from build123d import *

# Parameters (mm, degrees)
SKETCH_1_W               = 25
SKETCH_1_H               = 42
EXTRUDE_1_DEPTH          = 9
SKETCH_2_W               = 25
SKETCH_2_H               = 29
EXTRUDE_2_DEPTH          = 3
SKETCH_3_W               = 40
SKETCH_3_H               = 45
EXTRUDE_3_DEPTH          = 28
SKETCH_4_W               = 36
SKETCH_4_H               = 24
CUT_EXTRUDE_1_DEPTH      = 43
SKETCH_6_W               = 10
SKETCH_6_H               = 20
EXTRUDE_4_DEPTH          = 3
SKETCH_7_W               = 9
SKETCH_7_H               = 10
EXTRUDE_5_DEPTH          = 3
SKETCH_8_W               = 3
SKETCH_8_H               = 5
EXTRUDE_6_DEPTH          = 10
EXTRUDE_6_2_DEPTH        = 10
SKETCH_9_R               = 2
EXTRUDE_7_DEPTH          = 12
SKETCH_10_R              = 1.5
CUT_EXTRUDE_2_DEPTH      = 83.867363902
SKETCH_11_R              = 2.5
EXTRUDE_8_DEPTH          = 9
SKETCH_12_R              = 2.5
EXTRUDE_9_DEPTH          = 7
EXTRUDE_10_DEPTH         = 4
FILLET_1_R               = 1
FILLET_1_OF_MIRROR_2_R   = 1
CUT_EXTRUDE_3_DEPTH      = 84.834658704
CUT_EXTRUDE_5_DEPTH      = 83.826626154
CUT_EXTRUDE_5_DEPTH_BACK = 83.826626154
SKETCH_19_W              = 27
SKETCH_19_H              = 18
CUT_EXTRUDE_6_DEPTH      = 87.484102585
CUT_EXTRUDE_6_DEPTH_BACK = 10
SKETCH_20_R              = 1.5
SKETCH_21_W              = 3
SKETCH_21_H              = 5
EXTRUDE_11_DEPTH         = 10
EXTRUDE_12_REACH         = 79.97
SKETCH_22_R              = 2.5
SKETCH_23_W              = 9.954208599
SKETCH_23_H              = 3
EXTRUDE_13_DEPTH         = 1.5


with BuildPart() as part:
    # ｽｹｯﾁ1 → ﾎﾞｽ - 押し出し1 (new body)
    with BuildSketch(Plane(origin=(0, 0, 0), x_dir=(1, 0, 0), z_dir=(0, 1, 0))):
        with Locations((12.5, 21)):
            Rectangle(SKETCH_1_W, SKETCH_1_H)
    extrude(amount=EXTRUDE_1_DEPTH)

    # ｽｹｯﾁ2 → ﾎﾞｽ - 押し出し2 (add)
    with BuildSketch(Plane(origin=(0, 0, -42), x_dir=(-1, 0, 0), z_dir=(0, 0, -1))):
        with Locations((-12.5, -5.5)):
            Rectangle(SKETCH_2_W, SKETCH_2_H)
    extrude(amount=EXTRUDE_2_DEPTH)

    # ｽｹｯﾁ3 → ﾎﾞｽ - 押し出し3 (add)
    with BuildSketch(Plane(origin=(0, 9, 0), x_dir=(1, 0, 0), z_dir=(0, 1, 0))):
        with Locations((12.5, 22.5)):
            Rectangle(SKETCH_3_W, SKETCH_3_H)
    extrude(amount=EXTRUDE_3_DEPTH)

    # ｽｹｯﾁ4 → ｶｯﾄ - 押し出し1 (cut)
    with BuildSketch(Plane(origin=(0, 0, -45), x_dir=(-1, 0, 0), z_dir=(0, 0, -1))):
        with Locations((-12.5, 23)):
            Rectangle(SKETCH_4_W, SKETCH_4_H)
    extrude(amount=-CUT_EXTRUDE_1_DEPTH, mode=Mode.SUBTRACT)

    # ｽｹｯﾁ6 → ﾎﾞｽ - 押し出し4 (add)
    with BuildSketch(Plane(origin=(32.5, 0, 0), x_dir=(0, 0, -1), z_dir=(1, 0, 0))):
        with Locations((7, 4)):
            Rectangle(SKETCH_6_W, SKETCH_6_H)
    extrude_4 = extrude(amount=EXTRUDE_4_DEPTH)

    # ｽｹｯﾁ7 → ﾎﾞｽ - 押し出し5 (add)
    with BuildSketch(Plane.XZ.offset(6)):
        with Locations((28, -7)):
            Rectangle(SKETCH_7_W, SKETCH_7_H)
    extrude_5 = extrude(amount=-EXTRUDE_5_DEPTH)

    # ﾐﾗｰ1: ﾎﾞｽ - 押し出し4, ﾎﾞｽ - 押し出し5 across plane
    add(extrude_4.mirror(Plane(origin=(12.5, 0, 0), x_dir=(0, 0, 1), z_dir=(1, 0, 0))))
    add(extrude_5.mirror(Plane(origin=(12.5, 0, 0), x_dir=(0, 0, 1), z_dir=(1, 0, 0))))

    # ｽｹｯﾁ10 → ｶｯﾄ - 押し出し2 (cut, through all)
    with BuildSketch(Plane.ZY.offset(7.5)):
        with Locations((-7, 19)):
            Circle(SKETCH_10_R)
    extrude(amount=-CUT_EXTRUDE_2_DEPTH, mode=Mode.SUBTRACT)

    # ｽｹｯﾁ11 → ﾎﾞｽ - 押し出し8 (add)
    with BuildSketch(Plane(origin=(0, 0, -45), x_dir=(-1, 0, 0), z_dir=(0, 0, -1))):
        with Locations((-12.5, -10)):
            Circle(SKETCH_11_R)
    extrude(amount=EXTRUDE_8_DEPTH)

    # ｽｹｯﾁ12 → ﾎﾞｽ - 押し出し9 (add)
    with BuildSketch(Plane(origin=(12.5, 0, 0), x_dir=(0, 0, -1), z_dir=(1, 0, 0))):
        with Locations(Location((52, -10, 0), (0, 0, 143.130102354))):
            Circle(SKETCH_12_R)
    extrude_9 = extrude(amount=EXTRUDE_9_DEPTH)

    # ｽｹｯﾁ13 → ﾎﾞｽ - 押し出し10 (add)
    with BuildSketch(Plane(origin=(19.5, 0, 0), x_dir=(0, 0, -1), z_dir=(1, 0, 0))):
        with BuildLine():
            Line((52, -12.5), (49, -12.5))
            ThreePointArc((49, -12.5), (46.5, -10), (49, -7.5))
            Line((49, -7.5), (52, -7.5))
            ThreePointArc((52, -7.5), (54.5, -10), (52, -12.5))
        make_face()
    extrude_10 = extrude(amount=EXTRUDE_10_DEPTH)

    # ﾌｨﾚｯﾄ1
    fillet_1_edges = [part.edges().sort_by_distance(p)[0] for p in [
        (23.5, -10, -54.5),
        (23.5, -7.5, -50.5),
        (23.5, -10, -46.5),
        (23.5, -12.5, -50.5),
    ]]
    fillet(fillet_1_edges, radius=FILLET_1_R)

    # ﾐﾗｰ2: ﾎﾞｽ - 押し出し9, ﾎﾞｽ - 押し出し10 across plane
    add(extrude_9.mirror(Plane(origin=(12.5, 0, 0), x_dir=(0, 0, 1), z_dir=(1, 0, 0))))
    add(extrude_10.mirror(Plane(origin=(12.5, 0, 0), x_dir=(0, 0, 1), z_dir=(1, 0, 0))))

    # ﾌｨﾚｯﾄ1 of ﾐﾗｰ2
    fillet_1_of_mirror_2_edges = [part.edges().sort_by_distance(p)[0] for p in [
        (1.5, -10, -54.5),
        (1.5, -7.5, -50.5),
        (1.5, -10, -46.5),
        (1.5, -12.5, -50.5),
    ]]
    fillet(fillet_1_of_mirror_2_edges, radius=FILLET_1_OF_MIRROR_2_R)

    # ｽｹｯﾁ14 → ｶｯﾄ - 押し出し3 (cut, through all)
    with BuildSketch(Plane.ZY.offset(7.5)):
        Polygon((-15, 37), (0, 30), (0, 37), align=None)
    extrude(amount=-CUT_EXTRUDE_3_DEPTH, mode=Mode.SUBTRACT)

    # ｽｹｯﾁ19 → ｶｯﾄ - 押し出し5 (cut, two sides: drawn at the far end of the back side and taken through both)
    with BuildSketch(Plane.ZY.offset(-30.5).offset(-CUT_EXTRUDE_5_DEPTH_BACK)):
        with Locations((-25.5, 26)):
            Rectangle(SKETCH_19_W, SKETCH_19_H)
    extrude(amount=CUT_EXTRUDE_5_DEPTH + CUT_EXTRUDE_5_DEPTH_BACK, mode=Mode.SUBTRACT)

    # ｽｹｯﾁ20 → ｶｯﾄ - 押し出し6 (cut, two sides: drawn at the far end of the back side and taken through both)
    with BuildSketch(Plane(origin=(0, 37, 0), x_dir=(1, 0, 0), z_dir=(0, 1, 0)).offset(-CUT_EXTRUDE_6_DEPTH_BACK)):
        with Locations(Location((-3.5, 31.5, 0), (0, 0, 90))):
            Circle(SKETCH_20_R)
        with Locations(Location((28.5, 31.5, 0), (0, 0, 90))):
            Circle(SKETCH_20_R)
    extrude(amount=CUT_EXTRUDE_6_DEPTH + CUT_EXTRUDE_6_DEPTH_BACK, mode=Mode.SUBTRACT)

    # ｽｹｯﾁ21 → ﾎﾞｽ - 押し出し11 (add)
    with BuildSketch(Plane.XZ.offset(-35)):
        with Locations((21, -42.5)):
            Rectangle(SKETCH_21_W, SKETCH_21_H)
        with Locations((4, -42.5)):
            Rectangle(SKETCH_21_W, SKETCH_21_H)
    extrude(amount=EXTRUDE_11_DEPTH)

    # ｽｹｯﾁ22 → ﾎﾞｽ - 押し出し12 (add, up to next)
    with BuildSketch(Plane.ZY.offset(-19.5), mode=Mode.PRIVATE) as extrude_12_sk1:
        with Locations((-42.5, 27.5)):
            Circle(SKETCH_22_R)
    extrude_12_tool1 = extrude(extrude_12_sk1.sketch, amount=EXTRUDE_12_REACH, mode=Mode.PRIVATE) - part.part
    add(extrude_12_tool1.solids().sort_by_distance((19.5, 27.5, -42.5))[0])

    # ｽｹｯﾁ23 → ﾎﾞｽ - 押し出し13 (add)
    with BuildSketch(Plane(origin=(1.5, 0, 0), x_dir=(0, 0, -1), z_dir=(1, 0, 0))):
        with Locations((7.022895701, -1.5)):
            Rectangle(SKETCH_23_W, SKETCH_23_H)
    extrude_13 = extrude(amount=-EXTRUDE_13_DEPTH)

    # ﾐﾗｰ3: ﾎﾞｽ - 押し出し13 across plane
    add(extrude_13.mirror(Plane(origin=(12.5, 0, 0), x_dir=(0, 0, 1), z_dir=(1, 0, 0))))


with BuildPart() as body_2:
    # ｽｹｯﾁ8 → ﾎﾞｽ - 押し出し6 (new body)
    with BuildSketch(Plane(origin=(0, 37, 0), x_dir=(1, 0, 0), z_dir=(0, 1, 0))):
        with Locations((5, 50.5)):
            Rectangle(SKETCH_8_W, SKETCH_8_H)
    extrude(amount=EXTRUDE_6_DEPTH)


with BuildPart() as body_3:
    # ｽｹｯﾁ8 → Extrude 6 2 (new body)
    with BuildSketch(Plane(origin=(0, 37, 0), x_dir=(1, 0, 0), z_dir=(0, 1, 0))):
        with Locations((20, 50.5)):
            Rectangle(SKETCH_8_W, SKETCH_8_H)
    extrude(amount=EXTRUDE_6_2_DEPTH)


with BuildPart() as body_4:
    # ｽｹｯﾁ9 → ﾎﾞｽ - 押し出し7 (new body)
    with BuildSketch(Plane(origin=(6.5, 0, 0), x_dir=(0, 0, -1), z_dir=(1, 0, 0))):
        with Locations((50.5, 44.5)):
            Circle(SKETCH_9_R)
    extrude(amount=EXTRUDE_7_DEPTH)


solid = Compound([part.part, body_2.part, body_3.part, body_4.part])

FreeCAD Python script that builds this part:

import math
import FreeCAD as App
import Part
import Sketcher
Q = App.Units.Quantity


def edges_at(feature, points):
    """Names of the edges that pass closest to the given points."""
    edges = feature.Shape.Edges
    near = lambda p: min(range(len(edges)), key=lambda i: edges[i].distToShape(Part.Vertex(*p))[0])
    return sorted({f"Edge{near(p) + 1}" for p in points})

doc = App.newDocument("Part")
body = doc.addObject("PartDesign::Body", "Body")

# Sketch on XZ plane
sketch1 = body.newObject("Sketcher::SketchObject", "Sketch")
sketch1.AttachmentSupport = (doc.getObject("XZ_Plane"), [""])
sketch1.MapMode = "FlatFace"
sketch1.addGeometry([
    Part.LineSegment(App.Vector(0, -42, 0), App.Vector(0, 0, 0)),
    Part.LineSegment(App.Vector(0, 0, 0), App.Vector(25, 0, 0)),
    Part.LineSegment(App.Vector(25, 0, 0), App.Vector(25, -42, 0)),
    Part.LineSegment(App.Vector(25, -42, 0), App.Vector(0, -42, 0)),
], False)
sketch1.addConstraint([
    Sketcher.Constraint("Coincident", 0, 2, 1, 1),
    Sketcher.Constraint("Coincident", 1, 2, 2, 1),
    Sketcher.Constraint("Coincident", 2, 2, 3, 1),
    Sketcher.Constraint("Coincident", 3, 2, 0, 1),
    Sketcher.Constraint("Vertical", 0),
    Sketcher.Constraint("Horizontal", 1),
    Sketcher.Constraint("Vertical", 2),
    Sketcher.Constraint("Horizontal", 3),
    Sketcher.Constraint("Coincident", 0, 2, -1, 1),
    Sketcher.Constraint("DistanceX", 1, 1, 1, 2, Q("25 mm")),
    Sketcher.Constraint("DistanceY", 0, 1, 0, 2, Q("42 mm")),
])
pad1 = body.newObject("PartDesign::Pad", "Pad")
pad1.Profile = sketch1
pad1.Length = 9
pad1.Reversed = True

# Sketch on XY plane
sketch2 = body.newObject("Sketcher::SketchObject", "Sketch001")
sketch2.AttachmentSupport = (doc.getObject("XY_Plane"), [""])
sketch2.MapMode = "FlatFace"
sketch2.AttachmentOffset = App.Placement(App.Vector(0, 0, -42), App.Rotation())
sketch2.addGeometry([
    Part.LineSegment(App.Vector(25, 9, 0), App.Vector(25, -20, 0)),
    Part.LineSegment(App.Vector(25, -20, 0), App.Vector(0, -20, 0)),
    Part.LineSegment(App.Vector(0, -20, 0), App.Vector(0, 9, 0)),
    Part.LineSegment(App.Vector(0, 9, 0), App.Vector(25, 9, 0)),
], False)
sketch2.addConstraint([
    Sketcher.Constraint("Coincident", 0, 2, 1, 1),
    Sketcher.Constraint("Coincident", 1, 2, 2, 1),
    Sketcher.Constraint("Coincident", 2, 2, 3, 1),
    Sketcher.Constraint("Coincident", 3, 2, 0, 1),
    Sketcher.Constraint("Vertical", 0),
    Sketcher.Constraint("Horizontal", 1),
    Sketcher.Constraint("Vertical", 2),
    Sketcher.Constraint("Horizontal", 3),
    Sketcher.Constraint("PointOnObject", 1, 2, -2),
    Sketcher.Constraint("DistanceX", 1, 2, 1, 1, Q("25 mm")),
    Sketcher.Constraint("DistanceY", 0, 2, 0, 1, Q("29 mm")),
    Sketcher.Constraint("DistanceY", 0, 2, -1, 1, Q("20 mm")),
])
pad2 = body.newObject("PartDesign::Pad", "Pad001")
pad2.Profile = sketch2
pad2.Length = 3
pad2.Reversed = True

# Sketch on XZ plane
sketch3 = body.newObject("Sketcher::SketchObject", "Sketch002")
sketch3.AttachmentSupport = (doc.getObject("XZ_Plane"), [""])
sketch3.MapMode = "FlatFace"
sketch3.AttachmentOffset = App.Placement(App.Vector(0, 0, -9), App.Rotation())
sketch3.addGeometry([
    Part.LineSegment(App.Vector(-7.5, -45, 0), App.Vector(-7.5, 0, 0)),
    Part.LineSegment(App.Vector(-7.5, 0, 0), App.Vector(32.5, 0, 0)),
    Part.LineSegment(App.Vector(32.5, 0, 0), App.Vector(32.5, -45, 0)),
    Part.LineSegment(App.Vector(32.5, -45, 0), App.Vector(-7.5, -45, 0)),
], False)
sketch3.addConstraint([
    Sketcher.Constraint("Coincident", 0, 2, 1, 1),
    Sketcher.Constraint("Coincident", 1, 2, 2, 1),
    Sketcher.Constraint("Coincident", 2, 2, 3, 1),
    Sketcher.Constraint("Coincident", 3, 2, 0, 1),
    Sketcher.Constraint("Vertical", 0),
    Sketcher.Constraint("Horizontal", 1),
    Sketcher.Constraint("Vertical", 2),
    Sketcher.Constraint("Horizontal", 3),
    Sketcher.Constraint("PointOnObject", 0, 2, -1),
    Sketcher.Constraint("DistanceX", 1, 1, 1, 2, Q("40 mm")),
    Sketcher.Constraint("DistanceY", 0, 1, 0, 2, Q("45 mm")),
    Sketcher.Constraint("DistanceX", 0, 2, -1, 1, Q("7.5 mm")),
])
pad3 = body.newObject("PartDesign::Pad", "Pad002")
pad3.Profile = sketch3
pad3.Length = 28
pad3.Reversed = True

# Sketch on XY plane
sketch4 = body.newObject("Sketcher::SketchObject", "Sketch003")
sketch4.AttachmentSupport = (doc.getObject("XY_Plane"), [""])
sketch4.MapMode = "FlatFace"
sketch4.AttachmentOffset = App.Placement(App.Vector(0, 0, -45), App.Rotation())
sketch4.addGeometry([
    Part.LineSegment(App.Vector(30.5, 35, 0), App.Vector(30.5, 11, 0)),
    Part.LineSegment(App.Vector(30.5, 11, 0), App.Vector(-5.5, 11, 0)),
    Part.LineSegment(App.Vector(-5.5, 11, 0), App.Vector(-5.5, 35, 0)),
    Part.LineSegment(App.Vector(-5.5, 35, 0), App.Vector(30.5, 35, 0)),
], False)
sketch4.addConstraint([
    Sketcher.Constraint("Coincident", 0, 2, 1, 1),
    Sketcher.Constraint("Coincident", 1, 2, 2, 1),
    Sketcher.Constraint("Coincident", 2, 2, 3, 1),
    Sketcher.Constraint("Coincident", 3, 2, 0, 1),
    Sketcher.Constraint("Vertical", 0),
    Sketcher.Constraint("Horizontal", 1),
    Sketcher.Constraint("Vertical", 2),
    Sketcher.Constraint("Horizontal", 3),
    Sketcher.Constraint("DistanceX", 1, 2, 1, 1, Q("36 mm")),
    Sketcher.Constraint("DistanceY", 0, 2, 0, 1, Q("24 mm")),
    Sketcher.Constraint("DistanceY", -1, 1, 0, 2, Q("11 mm")),
    Sketcher.Constraint("DistanceX", -1, 1, 0, 2, Q("30.5 mm")),
])
pocket1 = body.newObject("PartDesign::Pocket", "Pocket")
pocket1.Profile = sketch4
pocket1.Length = 43
pocket1.Reversed = True

# Sketch on YZ plane
sketch5 = body.newObject("Sketcher::SketchObject", "Sketch004")
sketch5.AttachmentSupport = (doc.getObject("YZ_Plane"), [""])
sketch5.MapMode = "FlatFace"
sketch5.AttachmentOffset = App.Placement(App.Vector(0, 0, 32.5), App.Rotation())
sketch5.addGeometry([
    Part.LineSegment(App.Vector(14, -2, 0), App.Vector(-6, -2, 0)),
    Part.LineSegment(App.Vector(-6, -2, 0), App.Vector(-6, -12, 0)),
    Part.LineSegment(App.Vector(-6, -12, 0), App.Vector(14, -12, 0)),
    Part.LineSegment(App.Vector(14, -12, 0), App.Vector(14, -2, 0)),
], False)
sketch5.addConstraint([
    Sketcher.Constraint("Coincident", 0, 2, 1, 1),
    Sketcher.Constraint("Coincident", 1, 2, 2, 1),
    Sketcher.Constraint("Coincident", 2, 2, 3, 1),
    Sketcher.Constraint("Coincident", 3, 2, 0, 1),
    Sketcher.Constraint("Horizontal", 0),
    Sketcher.Constraint("Vertical", 1),
    Sketcher.Constraint("Horizontal", 2),
    Sketcher.Constraint("Vertical", 3),
    Sketcher.Constraint("DistanceX", 0, 2, 0, 1, Q("20 mm")),
    Sketcher.Constraint("DistanceY", 1, 2, 1, 1, Q("10 mm")),
    Sketcher.Constraint("DistanceX", 0, 2, -1, 1, Q("6 mm")),
    Sketcher.Constraint("DistanceY", 0, 2, -1, 1, Q("2 mm")),
])
pad4 = body.newObject("PartDesign::Pad", "Pad003")
pad4.Profile = sketch5
pad4.Length = 3

# Sketch on XZ plane
sketch6 = body.newObject("Sketcher::SketchObject", "Sketch005")
sketch6.AttachmentSupport = (doc.getObject("XZ_Plane"), [""])
sketch6.MapMode = "FlatFace"
sketch6.AttachmentOffset = App.Placement(App.Vector(0, 0, 6), App.Rotation())
sketch6.addGeometry([
    Part.LineSegment(App.Vector(23.5, -2, 0), App.Vector(23.5, -12, 0)),
    Part.LineSegment(App.Vector(23.5, -12, 0), App.Vector(32.5, -12, 0)),
    Part.LineSegment(App.Vector(32.5, -12, 0), App.Vector(32.5, -2, 0)),
    Part.LineSegment(App.Vector(32.5, -2, 0), App.Vector(23.5, -2, 0)),
], False)
sketch6.addConstraint([
    Sketcher.Constraint("Coincident", 0, 2, 1, 1),
    Sketcher.Constraint("Coincident", 1, 2, 2, 1),
    Sketcher.Constraint("Coincident", 2, 2, 3, 1),
    Sketcher.Constraint("Coincident", 3, 2, 0, 1),
    Sketcher.Constraint("Vertical", 0),
    Sketcher.Constraint("Horizontal", 1),
    Sketcher.Constraint("Vertical", 2),
    Sketcher.Constraint("Horizontal", 3),
    Sketcher.Constraint("DistanceX", 1, 1, 1, 2, Q("9 mm")),
    Sketcher.Constraint("DistanceY", 0, 2, 0, 1, Q("10 mm")),
    Sketcher.Constraint("DistanceY", 0, 2, -1, 1, Q("12 mm")),
    Sketcher.Constraint("DistanceX", -1, 1, 0, 2, Q("23.5 mm")),
])
pad5 = body.newObject("PartDesign::Pad", "Pad004")
pad5.Profile = sketch6
pad5.Length = 3
pad5.Reversed = True
doc.recompute()

datumplane = body.newObject("PartDesign::Plane", "DatumPlane")
datumplane.AttachmentSupport = (doc.getObject("YZ_Plane"), [""])
datumplane.MapMode = "FlatFace"
datumplane.AttachmentOffset = App.Placement(App.Vector(0, 0, 12.5), App.Rotation())
mirrored = body.newObject("PartDesign::Mirrored", "Mirrored")
mirrored.Originals = [pad4, pad5]
mirrored.MirrorPlane = (datumplane, [""])
body.Tip = mirrored

# Sketch on YZ plane
sketch7 = body.newObject("Sketcher::SketchObject", "Sketch006")
sketch7.AttachmentSupport = (doc.getObject("YZ_Plane"), [""])
sketch7.MapMode = "FlatFace"
sketch7.AttachmentOffset = App.Placement(App.Vector(0, 0, -7.5), App.Rotation())
sketch7.addGeometry(Part.Circle(App.Vector(19, -7, 0), App.Vector(0, 0, 1), 1.5), False)
sketch7.addConstraint([
    Sketcher.Constraint("Diameter", 0, Q("3 mm")),
    Sketcher.Constraint("DistanceX", -1, 1, 0, 3, Q("19 mm")),
    Sketcher.Constraint("DistanceY", 0, 3, -1, 1, Q("7 mm")),
])
pocket2 = body.newObject("PartDesign::Pocket", "Pocket001")
pocket2.Profile = sketch7
pocket2.Type = "ThroughAll"
pocket2.Reversed = True

# Sketch on XY plane
sketch8 = body.newObject("Sketcher::SketchObject", "Sketch007")
sketch8.AttachmentSupport = (doc.getObject("XY_Plane"), [""])
sketch8.MapMode = "FlatFace"
sketch8.AttachmentOffset = App.Placement(App.Vector(0, 0, -45), App.Rotation())
sketch8.addGeometry(Part.Circle(App.Vector(12.5, -10, 0), App.Vector(0, 0, 1), 2.5), False)
sketch8.addConstraint([
    Sketcher.Constraint("Diameter", 0, Q("5 mm")),
    Sketcher.Constraint("DistanceY", 0, 3, -1, 1, Q("10 mm")),
    Sketcher.Constraint("DistanceX", -1, 1, 0, 3, Q("12.5 mm")),
])
pad6 = body.newObject("PartDesign::Pad", "Pad005")
pad6.Profile = sketch8
pad6.Length = 9
pad6.Reversed = True

# Sketch on YZ plane
sketch9 = body.newObject("Sketcher::SketchObject", "Sketch008")
sketch9.AttachmentSupport = (doc.getObject("YZ_Plane"), [""])
sketch9.MapMode = "FlatFace"
sketch9.AttachmentOffset = App.Placement(App.Vector(0, 0, 12.5), App.Rotation())
sketch9.addGeometry(Part.Circle(App.Vector(-10, -52, 0), App.Vector(0, 0, 1), 2.5), False)
sketch9.addConstraint([
    Sketcher.Constraint("Diameter", 0, Q("5 mm")),
    Sketcher.Constraint("DistanceX", 0, 3, -1, 1, Q("10 mm")),
    Sketcher.Constraint("DistanceY", 0, 3, -1, 1, Q("52 mm")),
])
pad7 = body.newObject("PartDesign::Pad", "Pad006")
pad7.Profile = sketch9
pad7.Length = 7

# Sketch on YZ plane
sketch10 = body.newObject("Sketcher::SketchObject", "Sketch009")
sketch10.AttachmentSupport = (doc.getObject("YZ_Plane"), [""])
sketch10.MapMode = "FlatFace"
sketch10.AttachmentOffset = App.Placement(App.Vector(0, 0, 19.5), App.Rotation())
sketch10.addGeometry([
    Part.LineSegment(App.Vector(-12.5, -49, 0), App.Vector(-12.5, -52, 0)),
    Part.ArcOfCircle(Part.Circle(App.Vector(-10, -52, 0), App.Vector(0, 0, 1), 2.5), math.radians(180), math.radians(360)),
    Part.LineSegment(App.Vector(-7.5, -52, 0), App.Vector(-7.5, -49, 0)),
    Part.ArcOfCircle(Part.Circle(App.Vector(-10, -49, 0), App.Vector(0, 0, 1), 2.5), math.radians(0), math.radians(180)),
], False)
sketch10.addConstraint([
    Sketcher.Constraint("Tangent", 0, 2, 1, 1),
    Sketcher.Constraint("Tangent", 1, 2, 2, 1),
    Sketcher.Constraint("Tangent", 2, 2, 3, 1),
    Sketcher.Constraint("Tangent", 3, 2, 0, 1),
    Sketcher.Constraint("Vertical", 0),
    Sketcher.Constraint("Vertical", 2),
    Sketcher.Constraint("Radius", 1, Q("2.5 mm")),
    Sketcher.Constraint("DistanceY", 0, 2, 0, 1, Q("3 mm")),
    Sketcher.Constraint("DistanceX", 1, 3, -1, 1, Q("10 mm")),
    Sketcher.Constraint("DistanceY", 1, 3, -1, 1, Q("52 mm")),
])
pad8 = body.newObject("PartDesign::Pad", "Pad007")
pad8.Profile = sketch10
pad8.Length = 4
doc.recompute()

fillet = body.newObject("PartDesign::Fillet", "Fillet")
fillet.Base = (pad8, edges_at(pad8, [
    (23.5, -10, -54.5),
    (23.5, -7.5, -50.5),
    (23.5, -10, -46.5),
    (23.5, -12.5, -50.5),
]))
fillet.Radius = 1
doc.recompute()

datumplane2 = body.newObject("PartDesign::Plane", "DatumPlane001")
datumplane2.AttachmentSupport = (doc.getObject("YZ_Plane"), [""])
datumplane2.MapMode = "FlatFace"
datumplane2.AttachmentOffset = App.Placement(App.Vector(0, 0, 12.5), App.Rotation())
mirrored2 = body.newObject("PartDesign::Mirrored", "Mirrored001")
mirrored2.Originals = [pad7, pad8]
mirrored2.MirrorPlane = (datumplane2, [""])
body.Tip = mirrored2
doc.recompute()

fillet2 = body.newObject("PartDesign::Fillet", "Fillet001")
fillet2.Base = (mirrored2, edges_at(mirrored2, [
    (1.5, -10, -54.5),
    (1.5, -7.5, -50.5),
    (1.5, -10, -46.5),
    (1.5, -12.5, -50.5),
]))
fillet2.Radius = 1

# Sketch on YZ plane
sketch11 = body.newObject("Sketcher::SketchObject", "Sketch010")
sketch11.AttachmentSupport = (doc.getObject("YZ_Plane"), [""])
sketch11.MapMode = "FlatFace"
sketch11.AttachmentOffset = App.Placement(App.Vector(0, 0, -7.5), App.Rotation())
sketch11.addGeometry([
    Part.LineSegment(App.Vector(37, -15, 0), App.Vector(30, 0, 0)),
    Part.LineSegment(App.Vector(30, 0, 0), App.Vector(37, 0, 0)),
    Part.LineSegment(App.Vector(37, 0, 0), App.Vector(37, -15, 0)),
], False)
sketch11.addConstraint([
    Sketcher.Constraint("Coincident", 0, 2, 1, 1),
    Sketcher.Constraint("Coincident", 1, 2, 2, 1),
    Sketcher.Constraint("Coincident", 2, 2, 0, 1),
    Sketcher.Constraint("Horizontal", 1),
    Sketcher.Constraint("Vertical", 2),
    Sketcher.Constraint("PointOnObject", 0, 2, -1),
    Sketcher.Constraint("DistanceX", 1, 1, 1, 2, Q("7 mm")),
    Sketcher.Constraint("DistanceY", 2, 2, 2, 1, Q("15 mm")),
    Sketcher.Constraint("DistanceX", -1, 1, 0, 2, Q("30 mm")),
])
pocket3 = body.newObject("PartDesign::Pocket", "Pocket002")
pocket3.Profile = sketch11
pocket3.Type = "ThroughAll"
pocket3.Reversed = True

# Sketch on YZ plane
sketch12 = body.newObject("Sketcher::SketchObject", "Sketch011")
sketch12.AttachmentSupport = (doc.getObject("YZ_Plane"), [""])
sketch12.MapMode = "FlatFace"
sketch12.AttachmentOffset = App.Placement(App.Vector(0, 0, 30.5), App.Rotation())
sketch12.addGeometry([
    Part.LineSegment(App.Vector(35, -39, 0), App.Vector(17, -39, 0)),
    Part.LineSegment(App.Vector(17, -39, 0), App.Vector(17, -12, 0)),
    Part.LineSegment(App.Vector(17, -12, 0), App.Vector(35, -12, 0)),
    Part.LineSegment(App.Vector(35, -12, 0), App.Vector(35, -39, 0)),
], False)
sketch12.addConstraint([
    Sketcher.Constraint("Coincident", 0, 2, 1, 1),
    Sketcher.Constraint("Coincident", 1, 2, 2, 1),
    Sketcher.Constraint("Coincident", 2, 2, 3, 1),
    Sketcher.Constraint("Coincident", 3, 2, 0, 1),
    Sketcher.Constraint("Horizontal", 0),
    Sketcher.Constraint("Vertical", 1),
    Sketcher.Constraint("Horizontal", 2),
    Sketcher.Constraint("Vertical", 3),
    Sketcher.Constraint("DistanceX", 0, 2, 0, 1, Q("18 mm")),
    Sketcher.Constraint("DistanceY", 1, 1, 1, 2, Q("27 mm")),
    Sketcher.Constraint("DistanceX", -1, 1, 0, 2, Q("17 mm")),
    Sketcher.Constraint("DistanceY", 0, 2, -1, 1, Q("39 mm")),
])
pocket4 = body.newObject("PartDesign::Pocket", "Pocket003")
pocket4.Profile = sketch12
pocket4.Type = "ThroughAll"
pocket4.Midplane = True

# Sketch on XZ plane
sketch13 = body.newObject("Sketcher::SketchObject", "Sketch012")
sketch13.AttachmentSupport = (doc.getObject("XZ_Plane"), [""])
sketch13.MapMode = "FlatFace"
sketch13.AttachmentOffset = App.Placement(App.Vector(0, 0, -37), App.Rotation())
sketch13.addGeometry([
    Part.Circle(App.Vector(-3.5, -31.5, 0), App.Vector(0, 0, 1), 1.5),
    Part.Circle(App.Vector(28.5, -31.5, 0), App.Vector(0, 0, 1), 1.5),
], False)
sketch13.addConstraint([
    Sketcher.Constraint("Equal", 0, 1),
    Sketcher.Constraint("Horizontal", 0, 3, 1, 3),
    Sketcher.Constraint("Diameter", 0, Q("3 mm")),
    Sketcher.Constraint("DistanceX", 0, 3, 1, 3, Q("32 mm")),
    Sketcher.Constraint("DistanceX", 0, 3, -1, 1, Q("3.5 mm")),
    Sketcher.Constraint("DistanceY", 0, 3, -1, 1, Q("31.5 mm")),
])
pocket5 = body.newObject("PartDesign::Pocket", "Pocket004")
pocket5.Profile = sketch13
pocket5.Type = "TwoLengths"
pocket5.Length = 87.484103
pocket5.Length2 = 10

# Sketch on XZ plane
sketch14 = body.newObject("Sketcher::SketchObject", "Sketch013")
sketch14.AttachmentSupport = (doc.getObject("XZ_Plane"), [""])
sketch14.MapMode = "FlatFace"
sketch14.AttachmentOffset = App.Placement(App.Vector(0, 0, -35), App.Rotation())
sketch14.addGeometry([
    Part.LineSegment(App.Vector(19.5, -40, 0), App.Vector(19.5, -45, 0)),  # 0
    Part.LineSegment(App.Vector(19.5, -45, 0), App.Vector(22.5, -45, 0)),  # 1
    Part.LineSegment(App.Vector(22.5, -45, 0), App.Vector(22.5, -40, 0)),  # 2
    Part.LineSegment(App.Vector(22.5, -40, 0), App.Vector(19.5, -40, 0)),  # 3
    Part.LineSegment(App.Vector(2.5, -40, 0), App.Vector(2.5, -45, 0)),  # 4
    Part.LineSegment(App.Vector(2.5, -45, 0), App.Vector(5.5, -45, 0)),  # 5
    Part.LineSegment(App.Vector(5.5, -45, 0), App.Vector(5.5, -40, 0)),  # 6
    Part.LineSegment(App.Vector(5.5, -40, 0), App.Vector(2.5, -40, 0)),  # 7
], False)
sketch14.addConstraint([
    Sketcher.Constraint("Coincident", 0, 2, 1, 1),
    Sketcher.Constraint("Coincident", 1, 2, 2, 1),
    Sketcher.Constraint("Coincident", 2, 2, 3, 1),
    Sketcher.Constraint("Coincident", 3, 2, 0, 1),
    Sketcher.Constraint("Coincident", 4, 2, 5, 1),
    Sketcher.Constraint("Coincident", 5, 2, 6, 1),
    Sketcher.Constraint("Coincident", 6, 2, 7, 1),
    Sketcher.Constraint("Coincident", 7, 2, 4, 1),
    Sketcher.Constraint("Vertical", 0),
    Sketcher.Constraint("Horizontal", 1),
    Sketcher.Constraint("Vertical", 2),
    Sketcher.Constraint("Horizontal", 3),
    Sketcher.Constraint("Vertical", 4),
    Sketcher.Constraint("Horizontal", 5),
    Sketcher.Constraint("Vertical", 6),
    Sketcher.Constraint("Horizontal", 7),
    Sketcher.Constraint("Horizontal", 1, 2, 4, 2),
    Sketcher.Constraint("Horizontal", 3, 2, 6, 2),
    Sketcher.Constraint("Equal", 3, 5),
    Sketcher.Constraint("DistanceX", 1, 1, 1, 2, Q("3 mm")),
    Sketcher.Constraint("DistanceY", 0, 2, 0, 1, Q("5 mm")),
    Sketcher.Constraint("DistanceY", 0, 2, -1, 1, Q("45 mm")),
    Sketcher.Constraint("DistanceX", 4, 2, 0, 2, Q("17 mm")),
    Sketcher.Constraint("DistanceX", -1, 1, 0, 2, Q("19.5 mm")),
])
pad9 = body.newObject("PartDesign::Pad", "Pad008")
pad9.Profile = sketch14
pad9.Length = 10

# Sketch on YZ plane
sketch15 = body.newObject("Sketcher::SketchObject", "Sketch014")
sketch15.AttachmentSupport = (doc.getObject("YZ_Plane"), [""])
sketch15.MapMode = "FlatFace"
sketch15.AttachmentOffset = App.Placement(App.Vector(0, 0, 19.5), App.Rotation())
sketch15.addGeometry(Part.Circle(App.Vector(27.5, -42.5, 0), App.Vector(0, 0, 1), 2.5), False)
sketch15.addConstraint([
    Sketcher.Constraint("Diameter", 0, Q("5 mm")),
    Sketcher.Constraint("DistanceX", -1, 1, 0, 3, Q("27.5 mm")),
    Sketcher.Constraint("DistanceY", 0, 3, -1, 1, Q("42.5 mm")),
])
pad10 = body.newObject("PartDesign::Pad", "Pad009")
pad10.Profile = sketch15
pad10.Type = "UpToFirst"
pad10.Reversed = True

# Sketch on YZ plane
sketch16 = body.newObject("Sketcher::SketchObject", "Sketch015")
sketch16.AttachmentSupport = (doc.getObject("YZ_Plane"), [""])
sketch16.MapMode = "FlatFace"
sketch16.AttachmentOffset = App.Placement(App.Vector(0, 0, 1.5), App.Rotation())
sketch16.addGeometry([
    Part.LineSegment(App.Vector(0, -2.045791, 0), App.Vector(-3, -2.045791, 0)),
    Part.LineSegment(App.Vector(-3, -2.045791, 0), App.Vector(-3, -12, 0)),
    Part.LineSegment(App.Vector(-3, -12, 0), App.Vector(0, -12, 0)),
    Part.LineSegment(App.Vector(0, -12, 0), App.Vector(0, -2.045791, 0)),
], False)
sketch16.addConstraint([
    Sketcher.Constraint("Coincident", 0, 2, 1, 1),
    Sketcher.Constraint("Coincident", 1, 2, 2, 1),
    Sketcher.Constraint("Coincident", 2, 2, 3, 1),
    Sketcher.Constraint("Coincident", 3, 2, 0, 1),
    Sketcher.Constraint("Horizontal", 0),
    Sketcher.Constraint("Vertical", 1),
    Sketcher.Constraint("Horizontal", 2),
    Sketcher.Constraint("Vertical", 3),
    Sketcher.Constraint("PointOnObject", 2, 2, -2),
    Sketcher.Constraint("DistanceX", 0, 2, 0, 1, Q("3 mm")),
    Sketcher.Constraint("DistanceY", 1, 2, -1, 1, Q("12 mm")),
    Sketcher.Constraint("DistanceY", 1, 2, 1, 1, Q("9.954209 mm")),
])
pad11 = body.newObject("PartDesign::Pad", "Pad010")
pad11.Profile = sketch16
pad11.Length = 1.5
pad11.Reversed = True
doc.recompute()

datumplane3 = body.newObject("PartDesign::Plane", "DatumPlane002")
datumplane3.AttachmentSupport = (doc.getObject("YZ_Plane"), [""])
datumplane3.MapMode = "FlatFace"
datumplane3.AttachmentOffset = App.Placement(App.Vector(0, 0, 12.5), App.Rotation())
mirrored3 = body.newObject("PartDesign::Mirrored", "Mirrored002")
mirrored3.Originals = [pad11]
mirrored3.MirrorPlane = (datumplane3, [""])
body.Tip = mirrored3
body2 = doc.addObject("PartDesign::Body", "Body001")

# Sketch on XZ plane
sketch17 = body2.newObject("Sketcher::SketchObject", "Sketch016")
sketch17.AttachmentSupport = (doc.getObject("XZ_Plane001"), [""])
sketch17.MapMode = "FlatFace"
sketch17.AttachmentOffset = App.Placement(App.Vector(0, 0, -37), App.Rotation())
sketch17.addGeometry([
    Part.LineSegment(App.Vector(3.5, -53, 0), App.Vector(3.5, -48, 0)),
    Part.LineSegment(App.Vector(3.5, -48, 0), App.Vector(6.5, -48, 0)),
    Part.LineSegment(App.Vector(6.5, -48, 0), App.Vector(6.5, -53, 0)),
    Part.LineSegment(App.Vector(6.5, -53, 0), App.Vector(3.5, -53, 0)),
], False)
sketch17.addConstraint([
    Sketcher.Constraint("Coincident", 0, 2, 1, 1),
    Sketcher.Constraint("Coincident", 1, 2, 2, 1),
    Sketcher.Constraint("Coincident", 2, 2, 3, 1),
    Sketcher.Constraint("Coincident", 3, 2, 0, 1),
    Sketcher.Constraint("Vertical", 0),
    Sketcher.Constraint("Horizontal", 1),
    Sketcher.Constraint("Vertical", 2),
    Sketcher.Constraint("Horizontal", 3),
    Sketcher.Constraint("DistanceX", 1, 1, 1, 2, Q("3 mm")),
    Sketcher.Constraint("DistanceY", 0, 1, 0, 2, Q("5 mm")),
    Sketcher.Constraint("DistanceY", 0, 2, -1, 1, Q("48 mm")),
    Sketcher.Constraint("DistanceX", -1, 1, 0, 2, Q("3.5 mm")),
])
pad12 = body2.newObject("PartDesign::Pad", "Pad011")
pad12.Profile = sketch17
pad12.Length = 10
pad12.Reversed = True
body3 = doc.addObject("PartDesign::Body", "Body002")

# Sketch on XZ plane
sketch18 = body3.newObject("Sketcher::SketchObject", "Sketch017")
sketch18.AttachmentSupport = (doc.getObject("XZ_Plane002"), [""])
sketch18.MapMode = "FlatFace"
sketch18.AttachmentOffset = App.Placement(App.Vector(0, 0, -37), App.Rotation())
sketch18.addGeometry([
    Part.LineSegment(App.Vector(18.5, -53, 0), App.Vector(18.5, -48, 0)),
    Part.LineSegment(App.Vector(18.5, -48, 0), App.Vector(21.5, -48, 0)),
    Part.LineSegment(App.Vector(21.5, -48, 0), App.Vector(21.5, -53, 0)),
    Part.LineSegment(App.Vector(21.5, -53, 0), App.Vector(18.5, -53, 0)),
], False)
sketch18.addConstraint([
    Sketcher.Constraint("Coincident", 0, 2, 1, 1),
    Sketcher.Constraint("Coincident", 1, 2, 2, 1),
    Sketcher.Constraint("Coincident", 2, 2, 3, 1),
    Sketcher.Constraint("Coincident", 3, 2, 0, 1),
    Sketcher.Constraint("Vertical", 0),
    Sketcher.Constraint("Horizontal", 1),
    Sketcher.Constraint("Vertical", 2),
    Sketcher.Constraint("Horizontal", 3),
    Sketcher.Constraint("DistanceX", 1, 1, 1, 2, Q("3 mm")),
    Sketcher.Constraint("DistanceY", 0, 1, 0, 2, Q("5 mm")),
    Sketcher.Constraint("DistanceY", 0, 2, -1, 1, Q("48 mm")),
    Sketcher.Constraint("DistanceX", -1, 1, 0, 2, Q("18.5 mm")),
])
pad13 = body3.newObject("PartDesign::Pad", "Pad012")
pad13.Profile = sketch18
pad13.Length = 10
pad13.Reversed = True
body4 = doc.addObject("PartDesign::Body", "Body003")

# Sketch on YZ plane
sketch19 = body4.newObject("Sketcher::SketchObject", "Sketch018")
sketch19.AttachmentSupport = (doc.getObject("YZ_Plane003"), [""])
sketch19.MapMode = "FlatFace"
sketch19.AttachmentOffset = App.Placement(App.Vector(0, 0, 6.5), App.Rotation())
sketch19.addGeometry(Part.Circle(App.Vector(44.5, -50.5, 0), App.Vector(0, 0, 1), 2), False)
sketch19.addConstraint([
    Sketcher.Constraint("Diameter", 0, Q("4 mm")),
    Sketcher.Constraint("DistanceX", -1, 1, 0, 3, Q("44.5 mm")),
    Sketcher.Constraint("DistanceY", 0, 3, -1, 1, Q("50.5 mm")),
])
pad14 = body4.newObject("PartDesign::Pad", "Pad013")
pad14.Profile = sketch19
pad14.Length = 12

doc.recompute()
